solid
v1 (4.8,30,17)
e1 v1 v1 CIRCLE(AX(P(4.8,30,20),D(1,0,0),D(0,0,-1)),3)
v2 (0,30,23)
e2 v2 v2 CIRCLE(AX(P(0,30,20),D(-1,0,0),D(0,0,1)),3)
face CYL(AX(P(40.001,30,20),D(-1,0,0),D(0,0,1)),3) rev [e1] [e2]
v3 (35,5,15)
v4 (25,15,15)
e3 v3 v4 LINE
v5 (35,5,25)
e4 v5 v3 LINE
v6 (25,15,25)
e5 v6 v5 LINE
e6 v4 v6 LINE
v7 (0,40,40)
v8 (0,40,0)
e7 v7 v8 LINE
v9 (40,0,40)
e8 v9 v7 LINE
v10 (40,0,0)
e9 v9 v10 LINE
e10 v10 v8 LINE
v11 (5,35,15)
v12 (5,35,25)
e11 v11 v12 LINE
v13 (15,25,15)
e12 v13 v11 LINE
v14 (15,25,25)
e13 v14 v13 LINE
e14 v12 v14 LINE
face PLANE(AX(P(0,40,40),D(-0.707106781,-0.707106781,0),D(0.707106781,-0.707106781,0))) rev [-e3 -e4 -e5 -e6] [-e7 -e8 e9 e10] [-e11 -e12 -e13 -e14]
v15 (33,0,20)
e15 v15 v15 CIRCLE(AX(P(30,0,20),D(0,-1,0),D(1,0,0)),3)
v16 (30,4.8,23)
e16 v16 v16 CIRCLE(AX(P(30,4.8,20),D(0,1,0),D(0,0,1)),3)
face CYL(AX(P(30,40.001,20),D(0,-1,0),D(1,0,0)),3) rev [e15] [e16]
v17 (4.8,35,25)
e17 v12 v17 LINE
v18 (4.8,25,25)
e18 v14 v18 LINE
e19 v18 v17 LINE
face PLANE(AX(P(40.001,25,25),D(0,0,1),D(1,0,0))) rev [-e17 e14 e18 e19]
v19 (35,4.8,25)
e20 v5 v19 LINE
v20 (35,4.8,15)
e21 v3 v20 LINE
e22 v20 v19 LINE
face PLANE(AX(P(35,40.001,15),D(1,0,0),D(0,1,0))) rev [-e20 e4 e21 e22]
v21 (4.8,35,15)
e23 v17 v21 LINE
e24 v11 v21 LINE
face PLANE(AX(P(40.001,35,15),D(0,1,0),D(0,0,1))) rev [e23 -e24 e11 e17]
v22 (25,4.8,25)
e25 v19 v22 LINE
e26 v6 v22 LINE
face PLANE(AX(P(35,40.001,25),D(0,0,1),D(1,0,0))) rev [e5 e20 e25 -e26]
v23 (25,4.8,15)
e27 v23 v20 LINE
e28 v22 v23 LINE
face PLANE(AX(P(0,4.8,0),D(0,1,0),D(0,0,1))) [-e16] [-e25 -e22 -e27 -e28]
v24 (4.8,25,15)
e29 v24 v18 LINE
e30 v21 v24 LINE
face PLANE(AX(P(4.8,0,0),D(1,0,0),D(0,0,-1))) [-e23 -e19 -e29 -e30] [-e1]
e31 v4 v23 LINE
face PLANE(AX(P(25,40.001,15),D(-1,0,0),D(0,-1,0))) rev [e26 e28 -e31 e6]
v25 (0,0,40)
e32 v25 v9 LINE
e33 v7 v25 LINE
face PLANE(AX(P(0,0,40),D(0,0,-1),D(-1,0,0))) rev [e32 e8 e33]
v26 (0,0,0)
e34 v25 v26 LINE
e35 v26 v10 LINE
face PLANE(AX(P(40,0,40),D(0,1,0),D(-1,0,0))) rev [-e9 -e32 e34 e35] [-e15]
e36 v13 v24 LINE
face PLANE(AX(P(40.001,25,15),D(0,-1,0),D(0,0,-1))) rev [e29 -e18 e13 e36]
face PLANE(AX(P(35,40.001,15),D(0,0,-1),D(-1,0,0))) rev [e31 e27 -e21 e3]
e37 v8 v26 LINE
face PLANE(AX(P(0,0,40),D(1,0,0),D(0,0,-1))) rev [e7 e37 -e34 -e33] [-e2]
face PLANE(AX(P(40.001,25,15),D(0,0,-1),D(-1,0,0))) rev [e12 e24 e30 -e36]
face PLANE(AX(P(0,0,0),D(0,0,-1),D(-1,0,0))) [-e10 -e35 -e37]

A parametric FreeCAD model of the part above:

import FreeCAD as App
import Part
import Sketcher
from FreeCAD import Vector
Q = App.Units.Quantity

doc = App.newDocument("Part")
body = doc.addObject("PartDesign::Body", "Body")

# Sketch on XY plane
sketch1 = doc.addObject("Sketcher::SketchObject", "Sketch")
body.addObject(sketch1)
sketch1.AttachmentSupport = (doc.XY_Plane, [""])
sketch1.MapMode = "FlatFace"
sketch1.addGeometry([
    Part.LineSegment(Vector(0, 40, 0), Vector(0, 0, 0)),
    Part.LineSegment(Vector(0, 0, 0), Vector(40, 0, 0)),
    Part.LineSegment(Vector(40, 0, 0), Vector(0, 40, 0)),
], False)
sketch1.addConstraint([
    Sketcher.Constraint("Coincident", 0, 2, 1, 1),
    Sketcher.Constraint("Coincident", 1, 2, 2, 1),
    Sketcher.Constraint("Coincident", 2, 2, 0, 1),
    Sketcher.Constraint("Vertical", 0),
    Sketcher.Constraint("Horizontal", 1),
    Sketcher.Constraint("Coincident", 0, 2, -1, 1),
    Sketcher.Constraint("Equal", 1, 0),
    Sketcher.Constraint("DistanceX", 1, 1, 1, 2, Q("40 mm")),
])
pad1 = doc.addObject("PartDesign::Pad", "Pad")
body.addObject(pad1)
pad1.Profile = sketch1
pad1.Length = 40

# Sketch on XZ plane
sketch2 = doc.addObject("Sketcher::SketchObject", "Sketch001")
body.addObject(sketch2)
sketch2.AttachmentSupport = (doc.XZ_Plane, [""])
sketch2.MapMode = "FlatFace"
sketch2.addGeometry(Part.Circle(Vector(30, 20, 0), Vector(0, 0, 1), 3), False)
sketch2.addConstraint([
    Sketcher.Constraint("Diameter", 0, Q("6 mm")),
    Sketcher.Constraint("DistanceX", -1, 1, 0, 3, Q("30 mm")),
    Sketcher.Constraint("DistanceY", -1, 1, 0, 3, Q("20 mm")),
])
pocket1 = doc.addObject("PartDesign::Pocket", "Pocket")
body.addObject(pocket1)
pocket1.Profile = sketch2
pocket1.Type = "UpToFirst"

# Sketch on YZ plane
sketch3 = doc.addObject("Sketcher::SketchObject", "Sketch002")
body.addObject(sketch3)
sketch3.AttachmentSupport = (doc.YZ_Plane, [""])
sketch3.MapMode = "FlatFace"
sketch3.addGeometry(Part.Circle(Vector(30, 20, 0), Vector(0, 0, 1), 3), False)
sketch3.addConstraint([
    Sketcher.Constraint("Diameter", 0, Q("6 mm")),
    Sketcher.Constraint("DistanceX", -1, 1, 0, 3, Q("30 mm")),
    Sketcher.Constraint("DistanceY", -1, 1, 0, 3, Q("20 mm")),
])
pocket2 = doc.addObject("PartDesign::Pocket", "Pocket001")
body.addObject(pocket2)
pocket2.Profile = sketch3
pocket2.Type = "UpToFirst"
pocket2.Reversed = True

# Sketch on YZ plane
sketch4 = doc.addObject("Sketcher::SketchObject", "Sketch003")
body.addObject(sketch4)
sketch4.AttachmentSupport = (doc.YZ_Plane, [""])
sketch4.MapMode = "FlatFace"
sketch4.AttachmentOffset = App.Placement(Vector(0, 0, 4.8), App.Rotation())
sketch4.addGeometry([
    Part.LineSegment(Vector(35, 15, 0), Vector(25, 15, 0)),
    Part.LineSegment(Vector(25, 15, 0), Vector(25, 25, 0)),
    Part.LineSegment(Vector(25, 25, 0), Vector(35, 25, 0)),
    Part.LineSegment(Vector(35, 25, 0), Vector(35, 15, 0)),
], False)
sketch4.addConstraint([
    Sketcher.Constraint("Coincident", 0, 2, 1, 1),
    Sketcher.Constraint("Coincident", 1, 2, 2, 1),
    Sketcher.Constraint("Coincident", 2, 2, 3, 1),
    Sketcher.Constraint("Coincident", 3, 2, 0, 1),
    Sketcher.Constraint("Horizontal", 0),
    Sketcher.Constraint("Vertical", 1),
    Sketcher.Constraint("Horizontal", 2),
    Sketcher.Constraint("Vertical", 3),
    Sketcher.Constraint("Equal", 2, 1),
    Sketcher.Constraint("DistanceX", 0, 2, 0, 1, Q("10 mm")),
    Sketcher.Constraint("DistanceX", -1, 1, 0, 2, Q("25 mm")),
    Sketcher.Constraint("DistanceY", -1, 1, 0, 2, Q("15 mm")),
])
pocket3 = doc.addObject("PartDesign::Pocket", "Pocket002")
body.addObject(pocket3)
pocket3.Profile = sketch4
pocket3.Length = 10.2
pocket3.Reversed = True

# Sketch on XZ plane
sketch5 = doc.addObject("Sketcher::SketchObject", "Sketch004")
body.addObject(sketch5)
sketch5.AttachmentSupport = (doc.XZ_Plane, [""])
sketch5.MapMode = "FlatFace"
sketch5.AttachmentOffset = App.Placement(Vector(0, 0, -4.8), App.Rotation())
sketch5.addGeometry([
    Part.LineSegment(Vector(25, 15, 0), Vector(35, 15, 0)),
    Part.LineSegment(Vector(35, 15, 0), Vector(35, 25, 0)),
    Part.LineSegment(Vector(35, 25, 0), Vector(25, 25, 0)),
    Part.LineSegment(Vector(25, 25, 0), Vector(25, 15, 0)),
], False)
sketch5.addConstraint([
    Sketcher.Constraint("Coincident", 0, 2, 1, 1),
    Sketcher.Constraint("Coincident", 1, 2, 2, 1),
    Sketcher.Constraint("Coincident", 2, 2, 3, 1),
    Sketcher.Constraint("Coincident", 3, 2, 0, 1),
    Sketcher.Constraint("Horizontal", 0),
    Sketcher.Constraint("Vertical", 1),
    Sketcher.Constraint("Horizontal", 2),
    Sketcher.Constraint("Vertical", 3),
    Sketcher.Constraint("Equal", 2, 1),
    Sketcher.Constraint("DistanceX", 0, 1, 0, 2, Q("10 mm")),
    Sketcher.Constraint("DistanceX", -1, 1, 0, 2, Q("35 mm")),
    Sketcher.Constraint("DistanceY", -1, 1, 0, 2, Q("15 mm")),
])
pocket4 = doc.addObject("PartDesign::Pocket", "Pocket003")
body.addObject(pocket4)
pocket4.Profile = sketch5
pocket4.Length = 10.2

doc.recompute()
